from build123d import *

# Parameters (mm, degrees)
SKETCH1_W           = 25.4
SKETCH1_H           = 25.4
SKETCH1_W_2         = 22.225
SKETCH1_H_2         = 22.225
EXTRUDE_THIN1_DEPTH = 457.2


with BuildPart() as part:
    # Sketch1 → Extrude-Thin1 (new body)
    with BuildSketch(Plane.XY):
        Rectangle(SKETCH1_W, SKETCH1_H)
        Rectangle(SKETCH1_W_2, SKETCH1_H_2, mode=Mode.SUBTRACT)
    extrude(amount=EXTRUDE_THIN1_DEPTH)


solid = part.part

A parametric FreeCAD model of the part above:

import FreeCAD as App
import Part
import Sketcher
from FreeCAD import Vector
Q = App.Units.Quantity

doc = App.newDocument("Part")
body = doc.addObject("PartDesign::Body", "Body")

# Sketch on XY plane
sketch1 = body.newObject("Sketcher::SketchObject", "Sketch")
sketch1.AttachmentSupport = (doc.getObject("XY_Plane"), [""])
sketch1.MapMode = "FlatFace"
sketch1.addGeometry([
    Part.LineSegment(Vector(-13, 13, 0), Vector(-13, -13, 0)),  # 0
    Part.LineSegment(Vector(-13, -13, 0), Vector(13, -13, 0)),  # 1
    Part.LineSegment(Vector(13, -13, 0), Vector(13, 13, 0)),  # 2
    Part.LineSegment(Vector(13, 13, 0), Vector(-13, 13, 0)),  # 3
    Part.LineSegment(Vector(11, -11, 0), Vector(-11, -11, 0)),  # 4
    Part.LineSegment(Vector(-11, -11, 0), Vector(-11, 11, 0)),  # 5
    Part.LineSegment(Vector(-11, 11, 0), Vector(11, 11, 0)),  # 6
    Part.LineSegment(Vector(11, 11, 0), Vector(11, -11, 0)),  # 7
], False)
sketch1.addConstraint([
    Sketcher.Constraint("Coincident", 0, 2, 1, 1),
    Sketcher.Constraint("Coincident", 1, 2, 2, 1),
    Sketcher.Constraint("Coincident", 2, 2, 3, 1),
    Sketcher.Constraint("Coincident", 3, 2, 0, 1),
    Sketcher.Constraint("Coincident", 4, 2, 5, 1),
    Sketcher.Constraint("Coincident", 5, 2, 6, 1),
    Sketcher.Constraint("Coincident", 6, 2, 7, 1),
    Sketcher.Constraint("Coincident", 7, 2, 4, 1),
    Sketcher.Constraint("Vertical", 0),
    Sketcher.Constraint("Horizontal", 1),
    Sketcher.Constraint("Vertical", 2),
    Sketcher.Constraint("Horizontal", 3),
    Sketcher.Constraint("Horizontal", 4),
    Sketcher.Constraint("Vertical", 5),
    Sketcher.Constraint("Horizontal", 6),
    Sketcher.Constraint("Vertical", 7),
    Sketcher.Constraint("Symmetric", 0, 2, 2, 2, -1, 1),
    Sketcher.Constraint("Symmetric", 4, 2, 6, 2, -1, 1),
    Sketcher.Constraint("Equal", 3, 0),
    Sketcher.Constraint("Equal", 6, 5),
    Sketcher.Constraint("DistanceX", 1, 1, 1, 2, Q("1 in")),
    Sketcher.Constraint("DistanceX", 4, 2, 4, 1, Q("0.875 in")),
])
pad1 = body.newObject("PartDesign::Pad", "Pad")
pad1.Profile = sketch1
pad1.Length = Q("18 in")

doc.recompute()
